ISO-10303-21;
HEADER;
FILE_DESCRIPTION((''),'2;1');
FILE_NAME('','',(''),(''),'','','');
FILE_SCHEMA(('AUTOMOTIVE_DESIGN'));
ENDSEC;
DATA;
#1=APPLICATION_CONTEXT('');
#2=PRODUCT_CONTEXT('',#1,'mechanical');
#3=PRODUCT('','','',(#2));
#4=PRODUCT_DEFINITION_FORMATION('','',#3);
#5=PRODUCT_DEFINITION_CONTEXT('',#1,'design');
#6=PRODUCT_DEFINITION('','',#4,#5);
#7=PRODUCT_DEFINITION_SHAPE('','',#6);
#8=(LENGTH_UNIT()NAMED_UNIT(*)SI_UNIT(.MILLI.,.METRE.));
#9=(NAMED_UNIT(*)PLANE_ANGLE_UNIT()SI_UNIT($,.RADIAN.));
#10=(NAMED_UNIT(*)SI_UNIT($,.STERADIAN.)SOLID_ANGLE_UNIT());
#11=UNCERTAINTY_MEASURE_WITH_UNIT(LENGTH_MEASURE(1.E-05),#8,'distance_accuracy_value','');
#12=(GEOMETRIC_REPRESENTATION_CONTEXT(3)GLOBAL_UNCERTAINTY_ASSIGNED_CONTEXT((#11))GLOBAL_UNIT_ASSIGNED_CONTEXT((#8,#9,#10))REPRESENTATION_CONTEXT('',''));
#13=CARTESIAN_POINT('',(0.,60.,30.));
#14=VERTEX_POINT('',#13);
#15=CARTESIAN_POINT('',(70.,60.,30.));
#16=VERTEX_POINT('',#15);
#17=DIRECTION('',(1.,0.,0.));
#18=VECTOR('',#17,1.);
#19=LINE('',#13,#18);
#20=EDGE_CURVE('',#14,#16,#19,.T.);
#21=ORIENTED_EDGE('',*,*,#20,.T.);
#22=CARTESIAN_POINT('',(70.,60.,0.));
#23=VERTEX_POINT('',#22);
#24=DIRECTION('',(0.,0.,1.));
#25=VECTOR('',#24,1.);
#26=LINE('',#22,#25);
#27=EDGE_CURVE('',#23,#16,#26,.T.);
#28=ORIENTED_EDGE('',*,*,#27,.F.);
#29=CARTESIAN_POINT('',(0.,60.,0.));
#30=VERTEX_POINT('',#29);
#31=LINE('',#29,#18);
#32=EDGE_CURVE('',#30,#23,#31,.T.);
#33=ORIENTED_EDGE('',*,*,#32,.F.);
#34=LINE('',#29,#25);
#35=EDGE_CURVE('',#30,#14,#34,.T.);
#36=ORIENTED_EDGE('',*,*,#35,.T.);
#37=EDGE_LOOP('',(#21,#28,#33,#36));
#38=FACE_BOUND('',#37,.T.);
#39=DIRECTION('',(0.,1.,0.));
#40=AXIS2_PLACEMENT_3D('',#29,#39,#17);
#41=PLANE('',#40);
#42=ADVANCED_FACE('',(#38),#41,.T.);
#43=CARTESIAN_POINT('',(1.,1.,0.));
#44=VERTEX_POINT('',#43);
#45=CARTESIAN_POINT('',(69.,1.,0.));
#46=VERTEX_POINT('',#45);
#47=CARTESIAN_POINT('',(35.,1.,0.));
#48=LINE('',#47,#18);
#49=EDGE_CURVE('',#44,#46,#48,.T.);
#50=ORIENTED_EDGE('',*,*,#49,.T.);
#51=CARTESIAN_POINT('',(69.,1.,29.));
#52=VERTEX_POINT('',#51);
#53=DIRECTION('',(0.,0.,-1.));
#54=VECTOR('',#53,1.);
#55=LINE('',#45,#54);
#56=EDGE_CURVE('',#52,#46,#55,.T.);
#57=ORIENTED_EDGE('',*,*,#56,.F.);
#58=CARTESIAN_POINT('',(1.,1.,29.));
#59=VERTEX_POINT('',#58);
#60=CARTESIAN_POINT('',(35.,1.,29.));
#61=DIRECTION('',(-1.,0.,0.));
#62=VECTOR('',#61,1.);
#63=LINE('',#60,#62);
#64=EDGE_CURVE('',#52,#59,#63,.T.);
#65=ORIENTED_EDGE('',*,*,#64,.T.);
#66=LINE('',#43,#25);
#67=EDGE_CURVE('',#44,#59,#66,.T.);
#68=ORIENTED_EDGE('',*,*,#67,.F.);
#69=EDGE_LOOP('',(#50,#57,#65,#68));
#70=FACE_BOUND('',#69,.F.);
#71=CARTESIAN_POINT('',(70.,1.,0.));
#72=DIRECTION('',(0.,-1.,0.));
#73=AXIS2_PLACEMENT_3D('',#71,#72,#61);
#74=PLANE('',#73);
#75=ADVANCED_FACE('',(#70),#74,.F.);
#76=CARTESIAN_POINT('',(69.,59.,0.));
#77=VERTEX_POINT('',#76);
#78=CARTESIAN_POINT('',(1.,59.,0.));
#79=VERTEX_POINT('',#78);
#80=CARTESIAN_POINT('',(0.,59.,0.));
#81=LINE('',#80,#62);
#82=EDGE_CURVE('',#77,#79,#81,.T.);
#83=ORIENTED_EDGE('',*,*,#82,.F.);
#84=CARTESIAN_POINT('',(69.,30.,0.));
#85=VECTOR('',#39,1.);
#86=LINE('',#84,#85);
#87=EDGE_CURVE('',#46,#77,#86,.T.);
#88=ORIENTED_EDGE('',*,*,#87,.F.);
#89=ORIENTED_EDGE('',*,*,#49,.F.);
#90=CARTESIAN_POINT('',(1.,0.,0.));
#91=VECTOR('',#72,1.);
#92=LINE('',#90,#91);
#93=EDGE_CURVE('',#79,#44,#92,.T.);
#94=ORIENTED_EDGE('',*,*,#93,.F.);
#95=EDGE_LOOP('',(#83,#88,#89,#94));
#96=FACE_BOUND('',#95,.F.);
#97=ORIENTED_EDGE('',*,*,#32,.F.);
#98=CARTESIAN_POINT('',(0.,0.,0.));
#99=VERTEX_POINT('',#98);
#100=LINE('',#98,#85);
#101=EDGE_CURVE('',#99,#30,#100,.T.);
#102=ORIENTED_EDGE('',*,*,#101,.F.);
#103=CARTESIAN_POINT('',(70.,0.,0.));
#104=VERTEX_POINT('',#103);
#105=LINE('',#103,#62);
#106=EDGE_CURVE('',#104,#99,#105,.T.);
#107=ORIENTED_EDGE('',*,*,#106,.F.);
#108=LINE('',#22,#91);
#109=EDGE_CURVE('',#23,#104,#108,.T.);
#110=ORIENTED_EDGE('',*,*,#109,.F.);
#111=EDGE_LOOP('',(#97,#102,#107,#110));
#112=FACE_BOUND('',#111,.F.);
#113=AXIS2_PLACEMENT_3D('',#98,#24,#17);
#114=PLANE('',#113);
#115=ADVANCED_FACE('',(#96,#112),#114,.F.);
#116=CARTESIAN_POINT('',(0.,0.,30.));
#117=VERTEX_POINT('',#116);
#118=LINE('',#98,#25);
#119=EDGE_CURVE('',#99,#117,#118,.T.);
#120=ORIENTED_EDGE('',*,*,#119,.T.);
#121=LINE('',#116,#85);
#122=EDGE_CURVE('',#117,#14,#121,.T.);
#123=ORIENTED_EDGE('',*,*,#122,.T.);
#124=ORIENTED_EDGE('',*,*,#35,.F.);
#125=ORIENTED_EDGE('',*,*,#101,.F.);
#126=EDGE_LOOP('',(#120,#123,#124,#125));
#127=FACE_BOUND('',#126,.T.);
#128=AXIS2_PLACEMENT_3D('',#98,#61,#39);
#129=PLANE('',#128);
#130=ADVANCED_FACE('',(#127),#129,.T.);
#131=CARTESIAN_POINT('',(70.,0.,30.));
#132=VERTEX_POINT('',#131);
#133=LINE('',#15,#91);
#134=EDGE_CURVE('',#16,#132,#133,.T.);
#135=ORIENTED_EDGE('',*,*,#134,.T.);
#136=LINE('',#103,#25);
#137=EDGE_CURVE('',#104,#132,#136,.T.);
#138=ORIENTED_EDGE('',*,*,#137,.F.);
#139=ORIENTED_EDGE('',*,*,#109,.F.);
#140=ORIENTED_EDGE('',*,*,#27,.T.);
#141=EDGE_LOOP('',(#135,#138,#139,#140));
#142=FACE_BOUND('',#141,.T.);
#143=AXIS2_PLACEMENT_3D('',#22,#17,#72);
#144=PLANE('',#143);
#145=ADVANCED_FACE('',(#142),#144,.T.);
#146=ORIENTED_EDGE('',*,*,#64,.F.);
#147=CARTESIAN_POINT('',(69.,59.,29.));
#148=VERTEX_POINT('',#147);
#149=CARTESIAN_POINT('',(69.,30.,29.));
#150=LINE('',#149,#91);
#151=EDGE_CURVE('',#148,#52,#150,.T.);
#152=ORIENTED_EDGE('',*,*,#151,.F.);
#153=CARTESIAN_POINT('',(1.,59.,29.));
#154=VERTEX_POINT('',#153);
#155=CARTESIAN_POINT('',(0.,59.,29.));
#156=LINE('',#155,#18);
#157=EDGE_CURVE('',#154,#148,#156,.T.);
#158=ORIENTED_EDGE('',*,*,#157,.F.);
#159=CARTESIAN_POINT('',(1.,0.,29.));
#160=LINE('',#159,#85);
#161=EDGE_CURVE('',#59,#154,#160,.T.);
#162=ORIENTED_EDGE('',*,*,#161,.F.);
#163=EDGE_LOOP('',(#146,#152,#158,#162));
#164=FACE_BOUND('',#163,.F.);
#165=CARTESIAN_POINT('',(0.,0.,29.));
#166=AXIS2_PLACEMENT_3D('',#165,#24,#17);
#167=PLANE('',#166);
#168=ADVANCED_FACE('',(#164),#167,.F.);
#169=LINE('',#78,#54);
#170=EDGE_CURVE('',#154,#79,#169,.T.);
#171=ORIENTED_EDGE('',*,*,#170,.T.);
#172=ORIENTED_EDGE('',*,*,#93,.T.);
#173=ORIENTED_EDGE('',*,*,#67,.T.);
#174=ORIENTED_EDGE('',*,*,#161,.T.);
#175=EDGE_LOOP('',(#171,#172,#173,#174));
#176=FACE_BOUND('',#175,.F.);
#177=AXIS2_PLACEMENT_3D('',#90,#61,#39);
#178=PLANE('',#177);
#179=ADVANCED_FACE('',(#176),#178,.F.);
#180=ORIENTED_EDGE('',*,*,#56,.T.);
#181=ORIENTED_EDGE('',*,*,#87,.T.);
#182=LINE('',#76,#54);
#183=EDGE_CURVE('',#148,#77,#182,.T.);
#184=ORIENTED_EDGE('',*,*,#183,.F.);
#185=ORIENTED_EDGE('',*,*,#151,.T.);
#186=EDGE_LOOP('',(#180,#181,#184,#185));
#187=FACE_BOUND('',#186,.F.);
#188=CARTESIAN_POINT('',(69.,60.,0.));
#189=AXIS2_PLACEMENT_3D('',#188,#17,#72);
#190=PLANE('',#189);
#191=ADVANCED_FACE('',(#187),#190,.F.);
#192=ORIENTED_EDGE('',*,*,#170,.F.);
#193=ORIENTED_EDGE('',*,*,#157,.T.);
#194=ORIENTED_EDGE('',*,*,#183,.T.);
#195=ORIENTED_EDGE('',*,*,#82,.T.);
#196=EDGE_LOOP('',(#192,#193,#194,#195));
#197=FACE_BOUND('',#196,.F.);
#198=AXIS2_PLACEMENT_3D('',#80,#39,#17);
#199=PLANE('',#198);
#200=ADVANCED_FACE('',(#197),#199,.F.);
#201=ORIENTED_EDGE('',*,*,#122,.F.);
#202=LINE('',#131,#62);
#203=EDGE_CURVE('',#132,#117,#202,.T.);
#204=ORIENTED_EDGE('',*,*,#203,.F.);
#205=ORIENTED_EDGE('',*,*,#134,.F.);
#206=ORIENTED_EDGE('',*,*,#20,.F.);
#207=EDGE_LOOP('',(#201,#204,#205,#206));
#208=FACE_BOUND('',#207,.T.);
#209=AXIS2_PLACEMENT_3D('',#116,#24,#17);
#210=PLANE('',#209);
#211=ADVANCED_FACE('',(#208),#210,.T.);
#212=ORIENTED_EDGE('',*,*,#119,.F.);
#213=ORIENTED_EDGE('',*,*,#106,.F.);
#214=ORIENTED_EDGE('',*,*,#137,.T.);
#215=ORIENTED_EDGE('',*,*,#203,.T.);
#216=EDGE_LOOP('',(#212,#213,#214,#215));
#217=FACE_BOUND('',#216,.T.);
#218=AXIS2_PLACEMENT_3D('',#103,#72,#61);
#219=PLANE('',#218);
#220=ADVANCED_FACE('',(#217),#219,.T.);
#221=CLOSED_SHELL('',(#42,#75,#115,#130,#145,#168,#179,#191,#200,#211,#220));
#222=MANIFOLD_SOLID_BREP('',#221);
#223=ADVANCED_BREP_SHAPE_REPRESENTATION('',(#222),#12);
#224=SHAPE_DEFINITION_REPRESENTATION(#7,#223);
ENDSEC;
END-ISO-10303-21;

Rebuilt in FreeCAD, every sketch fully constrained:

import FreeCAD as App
import Part
import Sketcher


def faces_at(feature, points):
    """Names of the faces that lie closest to the given points."""
    faces = feature.Shape.Faces
    near = lambda p: min(range(len(faces)), key=lambda i: faces[i].distToShape(Part.Vertex(*p))[0])
    return sorted({f"Face{near(p) + 1}" for p in points})


def add_polygon(sketch, points):
    """Adds a closed chain of lines whose ends are joined by coincident constraints."""
    first, n = sketch.GeometryCount, len(points)
    for a, b in zip(points, points[1:] + points[:1]):
        sketch.addGeometry(Part.LineSegment(App.Vector(*a, 0), App.Vector(*b, 0)), False)
    for i in range(n):
        sketch.addConstraint(Sketcher.Constraint("Coincident", first + i, 2, first + (i + 1) % n, 1))

doc = App.newDocument("Part")
params = doc.addObject("Spreadsheet::Sheet", "Params")
for row, (alias, value) in enumerate([
    ("sketch1_width", "70 mm"),
    ("sketch1_height", "60 mm"),
    ("pad1_length", "30 mm"),
    ("thickness_wall", "1 mm"),
], start=1):
    params.set(f"A{row}", alias)
    params.set(f"B{row}", "=" + value)
    params.setAlias(f"B{row}", alias)

body = doc.addObject("PartDesign::Body", "Body")

# Sketch on XY plane
sketch1 = doc.addObject("Sketcher::SketchObject", "Sketch")
body.addObject(sketch1)
sketch1.AttachmentSupport = (doc.XY_Plane, [""])
sketch1.MapMode = "FlatFace"
add_polygon(sketch1, [(0, 60), (0, 0), (70, 0), (70, 60)])  # lines 0-3
sketch1.addConstraint(Sketcher.Constraint("Vertical", 0))
sketch1.addConstraint(Sketcher.Constraint("Horizontal", 1))
sketch1.addConstraint(Sketcher.Constraint("Vertical", 2))
sketch1.addConstraint(Sketcher.Constraint("Horizontal", 3))
sketch1.addConstraint(Sketcher.Constraint("Coincident", 0, 2, -1, 1))
sketch1.addConstraint(Sketcher.Constraint("DistanceX", 1, 1, 1, 2, 70.0))
sketch1.addConstraint(Sketcher.Constraint("DistanceY", 0, 2, 0, 1, 60.0))
sketch1.setExpression("Constraints[9]", "Params.sketch1_width")
sketch1.setExpression("Constraints[10]", "Params.sketch1_height")
pad1 = doc.addObject("PartDesign::Pad", "Pad")
body.addObject(pad1)
pad1.Profile = sketch1
pad1.setExpression("Length", "Params.pad1_length")
doc.recompute()

thickness = doc.addObject("PartDesign::Thickness", "Thickness")
body.addObject(thickness)
thickness.Base = (pad1, faces_at(pad1, [(23.333, 40, 0)]))
thickness.setExpression("Value", "Params.thickness_wall")
thickness.Reversed = True
thickness.Join = "Intersection"

doc.recompute()
